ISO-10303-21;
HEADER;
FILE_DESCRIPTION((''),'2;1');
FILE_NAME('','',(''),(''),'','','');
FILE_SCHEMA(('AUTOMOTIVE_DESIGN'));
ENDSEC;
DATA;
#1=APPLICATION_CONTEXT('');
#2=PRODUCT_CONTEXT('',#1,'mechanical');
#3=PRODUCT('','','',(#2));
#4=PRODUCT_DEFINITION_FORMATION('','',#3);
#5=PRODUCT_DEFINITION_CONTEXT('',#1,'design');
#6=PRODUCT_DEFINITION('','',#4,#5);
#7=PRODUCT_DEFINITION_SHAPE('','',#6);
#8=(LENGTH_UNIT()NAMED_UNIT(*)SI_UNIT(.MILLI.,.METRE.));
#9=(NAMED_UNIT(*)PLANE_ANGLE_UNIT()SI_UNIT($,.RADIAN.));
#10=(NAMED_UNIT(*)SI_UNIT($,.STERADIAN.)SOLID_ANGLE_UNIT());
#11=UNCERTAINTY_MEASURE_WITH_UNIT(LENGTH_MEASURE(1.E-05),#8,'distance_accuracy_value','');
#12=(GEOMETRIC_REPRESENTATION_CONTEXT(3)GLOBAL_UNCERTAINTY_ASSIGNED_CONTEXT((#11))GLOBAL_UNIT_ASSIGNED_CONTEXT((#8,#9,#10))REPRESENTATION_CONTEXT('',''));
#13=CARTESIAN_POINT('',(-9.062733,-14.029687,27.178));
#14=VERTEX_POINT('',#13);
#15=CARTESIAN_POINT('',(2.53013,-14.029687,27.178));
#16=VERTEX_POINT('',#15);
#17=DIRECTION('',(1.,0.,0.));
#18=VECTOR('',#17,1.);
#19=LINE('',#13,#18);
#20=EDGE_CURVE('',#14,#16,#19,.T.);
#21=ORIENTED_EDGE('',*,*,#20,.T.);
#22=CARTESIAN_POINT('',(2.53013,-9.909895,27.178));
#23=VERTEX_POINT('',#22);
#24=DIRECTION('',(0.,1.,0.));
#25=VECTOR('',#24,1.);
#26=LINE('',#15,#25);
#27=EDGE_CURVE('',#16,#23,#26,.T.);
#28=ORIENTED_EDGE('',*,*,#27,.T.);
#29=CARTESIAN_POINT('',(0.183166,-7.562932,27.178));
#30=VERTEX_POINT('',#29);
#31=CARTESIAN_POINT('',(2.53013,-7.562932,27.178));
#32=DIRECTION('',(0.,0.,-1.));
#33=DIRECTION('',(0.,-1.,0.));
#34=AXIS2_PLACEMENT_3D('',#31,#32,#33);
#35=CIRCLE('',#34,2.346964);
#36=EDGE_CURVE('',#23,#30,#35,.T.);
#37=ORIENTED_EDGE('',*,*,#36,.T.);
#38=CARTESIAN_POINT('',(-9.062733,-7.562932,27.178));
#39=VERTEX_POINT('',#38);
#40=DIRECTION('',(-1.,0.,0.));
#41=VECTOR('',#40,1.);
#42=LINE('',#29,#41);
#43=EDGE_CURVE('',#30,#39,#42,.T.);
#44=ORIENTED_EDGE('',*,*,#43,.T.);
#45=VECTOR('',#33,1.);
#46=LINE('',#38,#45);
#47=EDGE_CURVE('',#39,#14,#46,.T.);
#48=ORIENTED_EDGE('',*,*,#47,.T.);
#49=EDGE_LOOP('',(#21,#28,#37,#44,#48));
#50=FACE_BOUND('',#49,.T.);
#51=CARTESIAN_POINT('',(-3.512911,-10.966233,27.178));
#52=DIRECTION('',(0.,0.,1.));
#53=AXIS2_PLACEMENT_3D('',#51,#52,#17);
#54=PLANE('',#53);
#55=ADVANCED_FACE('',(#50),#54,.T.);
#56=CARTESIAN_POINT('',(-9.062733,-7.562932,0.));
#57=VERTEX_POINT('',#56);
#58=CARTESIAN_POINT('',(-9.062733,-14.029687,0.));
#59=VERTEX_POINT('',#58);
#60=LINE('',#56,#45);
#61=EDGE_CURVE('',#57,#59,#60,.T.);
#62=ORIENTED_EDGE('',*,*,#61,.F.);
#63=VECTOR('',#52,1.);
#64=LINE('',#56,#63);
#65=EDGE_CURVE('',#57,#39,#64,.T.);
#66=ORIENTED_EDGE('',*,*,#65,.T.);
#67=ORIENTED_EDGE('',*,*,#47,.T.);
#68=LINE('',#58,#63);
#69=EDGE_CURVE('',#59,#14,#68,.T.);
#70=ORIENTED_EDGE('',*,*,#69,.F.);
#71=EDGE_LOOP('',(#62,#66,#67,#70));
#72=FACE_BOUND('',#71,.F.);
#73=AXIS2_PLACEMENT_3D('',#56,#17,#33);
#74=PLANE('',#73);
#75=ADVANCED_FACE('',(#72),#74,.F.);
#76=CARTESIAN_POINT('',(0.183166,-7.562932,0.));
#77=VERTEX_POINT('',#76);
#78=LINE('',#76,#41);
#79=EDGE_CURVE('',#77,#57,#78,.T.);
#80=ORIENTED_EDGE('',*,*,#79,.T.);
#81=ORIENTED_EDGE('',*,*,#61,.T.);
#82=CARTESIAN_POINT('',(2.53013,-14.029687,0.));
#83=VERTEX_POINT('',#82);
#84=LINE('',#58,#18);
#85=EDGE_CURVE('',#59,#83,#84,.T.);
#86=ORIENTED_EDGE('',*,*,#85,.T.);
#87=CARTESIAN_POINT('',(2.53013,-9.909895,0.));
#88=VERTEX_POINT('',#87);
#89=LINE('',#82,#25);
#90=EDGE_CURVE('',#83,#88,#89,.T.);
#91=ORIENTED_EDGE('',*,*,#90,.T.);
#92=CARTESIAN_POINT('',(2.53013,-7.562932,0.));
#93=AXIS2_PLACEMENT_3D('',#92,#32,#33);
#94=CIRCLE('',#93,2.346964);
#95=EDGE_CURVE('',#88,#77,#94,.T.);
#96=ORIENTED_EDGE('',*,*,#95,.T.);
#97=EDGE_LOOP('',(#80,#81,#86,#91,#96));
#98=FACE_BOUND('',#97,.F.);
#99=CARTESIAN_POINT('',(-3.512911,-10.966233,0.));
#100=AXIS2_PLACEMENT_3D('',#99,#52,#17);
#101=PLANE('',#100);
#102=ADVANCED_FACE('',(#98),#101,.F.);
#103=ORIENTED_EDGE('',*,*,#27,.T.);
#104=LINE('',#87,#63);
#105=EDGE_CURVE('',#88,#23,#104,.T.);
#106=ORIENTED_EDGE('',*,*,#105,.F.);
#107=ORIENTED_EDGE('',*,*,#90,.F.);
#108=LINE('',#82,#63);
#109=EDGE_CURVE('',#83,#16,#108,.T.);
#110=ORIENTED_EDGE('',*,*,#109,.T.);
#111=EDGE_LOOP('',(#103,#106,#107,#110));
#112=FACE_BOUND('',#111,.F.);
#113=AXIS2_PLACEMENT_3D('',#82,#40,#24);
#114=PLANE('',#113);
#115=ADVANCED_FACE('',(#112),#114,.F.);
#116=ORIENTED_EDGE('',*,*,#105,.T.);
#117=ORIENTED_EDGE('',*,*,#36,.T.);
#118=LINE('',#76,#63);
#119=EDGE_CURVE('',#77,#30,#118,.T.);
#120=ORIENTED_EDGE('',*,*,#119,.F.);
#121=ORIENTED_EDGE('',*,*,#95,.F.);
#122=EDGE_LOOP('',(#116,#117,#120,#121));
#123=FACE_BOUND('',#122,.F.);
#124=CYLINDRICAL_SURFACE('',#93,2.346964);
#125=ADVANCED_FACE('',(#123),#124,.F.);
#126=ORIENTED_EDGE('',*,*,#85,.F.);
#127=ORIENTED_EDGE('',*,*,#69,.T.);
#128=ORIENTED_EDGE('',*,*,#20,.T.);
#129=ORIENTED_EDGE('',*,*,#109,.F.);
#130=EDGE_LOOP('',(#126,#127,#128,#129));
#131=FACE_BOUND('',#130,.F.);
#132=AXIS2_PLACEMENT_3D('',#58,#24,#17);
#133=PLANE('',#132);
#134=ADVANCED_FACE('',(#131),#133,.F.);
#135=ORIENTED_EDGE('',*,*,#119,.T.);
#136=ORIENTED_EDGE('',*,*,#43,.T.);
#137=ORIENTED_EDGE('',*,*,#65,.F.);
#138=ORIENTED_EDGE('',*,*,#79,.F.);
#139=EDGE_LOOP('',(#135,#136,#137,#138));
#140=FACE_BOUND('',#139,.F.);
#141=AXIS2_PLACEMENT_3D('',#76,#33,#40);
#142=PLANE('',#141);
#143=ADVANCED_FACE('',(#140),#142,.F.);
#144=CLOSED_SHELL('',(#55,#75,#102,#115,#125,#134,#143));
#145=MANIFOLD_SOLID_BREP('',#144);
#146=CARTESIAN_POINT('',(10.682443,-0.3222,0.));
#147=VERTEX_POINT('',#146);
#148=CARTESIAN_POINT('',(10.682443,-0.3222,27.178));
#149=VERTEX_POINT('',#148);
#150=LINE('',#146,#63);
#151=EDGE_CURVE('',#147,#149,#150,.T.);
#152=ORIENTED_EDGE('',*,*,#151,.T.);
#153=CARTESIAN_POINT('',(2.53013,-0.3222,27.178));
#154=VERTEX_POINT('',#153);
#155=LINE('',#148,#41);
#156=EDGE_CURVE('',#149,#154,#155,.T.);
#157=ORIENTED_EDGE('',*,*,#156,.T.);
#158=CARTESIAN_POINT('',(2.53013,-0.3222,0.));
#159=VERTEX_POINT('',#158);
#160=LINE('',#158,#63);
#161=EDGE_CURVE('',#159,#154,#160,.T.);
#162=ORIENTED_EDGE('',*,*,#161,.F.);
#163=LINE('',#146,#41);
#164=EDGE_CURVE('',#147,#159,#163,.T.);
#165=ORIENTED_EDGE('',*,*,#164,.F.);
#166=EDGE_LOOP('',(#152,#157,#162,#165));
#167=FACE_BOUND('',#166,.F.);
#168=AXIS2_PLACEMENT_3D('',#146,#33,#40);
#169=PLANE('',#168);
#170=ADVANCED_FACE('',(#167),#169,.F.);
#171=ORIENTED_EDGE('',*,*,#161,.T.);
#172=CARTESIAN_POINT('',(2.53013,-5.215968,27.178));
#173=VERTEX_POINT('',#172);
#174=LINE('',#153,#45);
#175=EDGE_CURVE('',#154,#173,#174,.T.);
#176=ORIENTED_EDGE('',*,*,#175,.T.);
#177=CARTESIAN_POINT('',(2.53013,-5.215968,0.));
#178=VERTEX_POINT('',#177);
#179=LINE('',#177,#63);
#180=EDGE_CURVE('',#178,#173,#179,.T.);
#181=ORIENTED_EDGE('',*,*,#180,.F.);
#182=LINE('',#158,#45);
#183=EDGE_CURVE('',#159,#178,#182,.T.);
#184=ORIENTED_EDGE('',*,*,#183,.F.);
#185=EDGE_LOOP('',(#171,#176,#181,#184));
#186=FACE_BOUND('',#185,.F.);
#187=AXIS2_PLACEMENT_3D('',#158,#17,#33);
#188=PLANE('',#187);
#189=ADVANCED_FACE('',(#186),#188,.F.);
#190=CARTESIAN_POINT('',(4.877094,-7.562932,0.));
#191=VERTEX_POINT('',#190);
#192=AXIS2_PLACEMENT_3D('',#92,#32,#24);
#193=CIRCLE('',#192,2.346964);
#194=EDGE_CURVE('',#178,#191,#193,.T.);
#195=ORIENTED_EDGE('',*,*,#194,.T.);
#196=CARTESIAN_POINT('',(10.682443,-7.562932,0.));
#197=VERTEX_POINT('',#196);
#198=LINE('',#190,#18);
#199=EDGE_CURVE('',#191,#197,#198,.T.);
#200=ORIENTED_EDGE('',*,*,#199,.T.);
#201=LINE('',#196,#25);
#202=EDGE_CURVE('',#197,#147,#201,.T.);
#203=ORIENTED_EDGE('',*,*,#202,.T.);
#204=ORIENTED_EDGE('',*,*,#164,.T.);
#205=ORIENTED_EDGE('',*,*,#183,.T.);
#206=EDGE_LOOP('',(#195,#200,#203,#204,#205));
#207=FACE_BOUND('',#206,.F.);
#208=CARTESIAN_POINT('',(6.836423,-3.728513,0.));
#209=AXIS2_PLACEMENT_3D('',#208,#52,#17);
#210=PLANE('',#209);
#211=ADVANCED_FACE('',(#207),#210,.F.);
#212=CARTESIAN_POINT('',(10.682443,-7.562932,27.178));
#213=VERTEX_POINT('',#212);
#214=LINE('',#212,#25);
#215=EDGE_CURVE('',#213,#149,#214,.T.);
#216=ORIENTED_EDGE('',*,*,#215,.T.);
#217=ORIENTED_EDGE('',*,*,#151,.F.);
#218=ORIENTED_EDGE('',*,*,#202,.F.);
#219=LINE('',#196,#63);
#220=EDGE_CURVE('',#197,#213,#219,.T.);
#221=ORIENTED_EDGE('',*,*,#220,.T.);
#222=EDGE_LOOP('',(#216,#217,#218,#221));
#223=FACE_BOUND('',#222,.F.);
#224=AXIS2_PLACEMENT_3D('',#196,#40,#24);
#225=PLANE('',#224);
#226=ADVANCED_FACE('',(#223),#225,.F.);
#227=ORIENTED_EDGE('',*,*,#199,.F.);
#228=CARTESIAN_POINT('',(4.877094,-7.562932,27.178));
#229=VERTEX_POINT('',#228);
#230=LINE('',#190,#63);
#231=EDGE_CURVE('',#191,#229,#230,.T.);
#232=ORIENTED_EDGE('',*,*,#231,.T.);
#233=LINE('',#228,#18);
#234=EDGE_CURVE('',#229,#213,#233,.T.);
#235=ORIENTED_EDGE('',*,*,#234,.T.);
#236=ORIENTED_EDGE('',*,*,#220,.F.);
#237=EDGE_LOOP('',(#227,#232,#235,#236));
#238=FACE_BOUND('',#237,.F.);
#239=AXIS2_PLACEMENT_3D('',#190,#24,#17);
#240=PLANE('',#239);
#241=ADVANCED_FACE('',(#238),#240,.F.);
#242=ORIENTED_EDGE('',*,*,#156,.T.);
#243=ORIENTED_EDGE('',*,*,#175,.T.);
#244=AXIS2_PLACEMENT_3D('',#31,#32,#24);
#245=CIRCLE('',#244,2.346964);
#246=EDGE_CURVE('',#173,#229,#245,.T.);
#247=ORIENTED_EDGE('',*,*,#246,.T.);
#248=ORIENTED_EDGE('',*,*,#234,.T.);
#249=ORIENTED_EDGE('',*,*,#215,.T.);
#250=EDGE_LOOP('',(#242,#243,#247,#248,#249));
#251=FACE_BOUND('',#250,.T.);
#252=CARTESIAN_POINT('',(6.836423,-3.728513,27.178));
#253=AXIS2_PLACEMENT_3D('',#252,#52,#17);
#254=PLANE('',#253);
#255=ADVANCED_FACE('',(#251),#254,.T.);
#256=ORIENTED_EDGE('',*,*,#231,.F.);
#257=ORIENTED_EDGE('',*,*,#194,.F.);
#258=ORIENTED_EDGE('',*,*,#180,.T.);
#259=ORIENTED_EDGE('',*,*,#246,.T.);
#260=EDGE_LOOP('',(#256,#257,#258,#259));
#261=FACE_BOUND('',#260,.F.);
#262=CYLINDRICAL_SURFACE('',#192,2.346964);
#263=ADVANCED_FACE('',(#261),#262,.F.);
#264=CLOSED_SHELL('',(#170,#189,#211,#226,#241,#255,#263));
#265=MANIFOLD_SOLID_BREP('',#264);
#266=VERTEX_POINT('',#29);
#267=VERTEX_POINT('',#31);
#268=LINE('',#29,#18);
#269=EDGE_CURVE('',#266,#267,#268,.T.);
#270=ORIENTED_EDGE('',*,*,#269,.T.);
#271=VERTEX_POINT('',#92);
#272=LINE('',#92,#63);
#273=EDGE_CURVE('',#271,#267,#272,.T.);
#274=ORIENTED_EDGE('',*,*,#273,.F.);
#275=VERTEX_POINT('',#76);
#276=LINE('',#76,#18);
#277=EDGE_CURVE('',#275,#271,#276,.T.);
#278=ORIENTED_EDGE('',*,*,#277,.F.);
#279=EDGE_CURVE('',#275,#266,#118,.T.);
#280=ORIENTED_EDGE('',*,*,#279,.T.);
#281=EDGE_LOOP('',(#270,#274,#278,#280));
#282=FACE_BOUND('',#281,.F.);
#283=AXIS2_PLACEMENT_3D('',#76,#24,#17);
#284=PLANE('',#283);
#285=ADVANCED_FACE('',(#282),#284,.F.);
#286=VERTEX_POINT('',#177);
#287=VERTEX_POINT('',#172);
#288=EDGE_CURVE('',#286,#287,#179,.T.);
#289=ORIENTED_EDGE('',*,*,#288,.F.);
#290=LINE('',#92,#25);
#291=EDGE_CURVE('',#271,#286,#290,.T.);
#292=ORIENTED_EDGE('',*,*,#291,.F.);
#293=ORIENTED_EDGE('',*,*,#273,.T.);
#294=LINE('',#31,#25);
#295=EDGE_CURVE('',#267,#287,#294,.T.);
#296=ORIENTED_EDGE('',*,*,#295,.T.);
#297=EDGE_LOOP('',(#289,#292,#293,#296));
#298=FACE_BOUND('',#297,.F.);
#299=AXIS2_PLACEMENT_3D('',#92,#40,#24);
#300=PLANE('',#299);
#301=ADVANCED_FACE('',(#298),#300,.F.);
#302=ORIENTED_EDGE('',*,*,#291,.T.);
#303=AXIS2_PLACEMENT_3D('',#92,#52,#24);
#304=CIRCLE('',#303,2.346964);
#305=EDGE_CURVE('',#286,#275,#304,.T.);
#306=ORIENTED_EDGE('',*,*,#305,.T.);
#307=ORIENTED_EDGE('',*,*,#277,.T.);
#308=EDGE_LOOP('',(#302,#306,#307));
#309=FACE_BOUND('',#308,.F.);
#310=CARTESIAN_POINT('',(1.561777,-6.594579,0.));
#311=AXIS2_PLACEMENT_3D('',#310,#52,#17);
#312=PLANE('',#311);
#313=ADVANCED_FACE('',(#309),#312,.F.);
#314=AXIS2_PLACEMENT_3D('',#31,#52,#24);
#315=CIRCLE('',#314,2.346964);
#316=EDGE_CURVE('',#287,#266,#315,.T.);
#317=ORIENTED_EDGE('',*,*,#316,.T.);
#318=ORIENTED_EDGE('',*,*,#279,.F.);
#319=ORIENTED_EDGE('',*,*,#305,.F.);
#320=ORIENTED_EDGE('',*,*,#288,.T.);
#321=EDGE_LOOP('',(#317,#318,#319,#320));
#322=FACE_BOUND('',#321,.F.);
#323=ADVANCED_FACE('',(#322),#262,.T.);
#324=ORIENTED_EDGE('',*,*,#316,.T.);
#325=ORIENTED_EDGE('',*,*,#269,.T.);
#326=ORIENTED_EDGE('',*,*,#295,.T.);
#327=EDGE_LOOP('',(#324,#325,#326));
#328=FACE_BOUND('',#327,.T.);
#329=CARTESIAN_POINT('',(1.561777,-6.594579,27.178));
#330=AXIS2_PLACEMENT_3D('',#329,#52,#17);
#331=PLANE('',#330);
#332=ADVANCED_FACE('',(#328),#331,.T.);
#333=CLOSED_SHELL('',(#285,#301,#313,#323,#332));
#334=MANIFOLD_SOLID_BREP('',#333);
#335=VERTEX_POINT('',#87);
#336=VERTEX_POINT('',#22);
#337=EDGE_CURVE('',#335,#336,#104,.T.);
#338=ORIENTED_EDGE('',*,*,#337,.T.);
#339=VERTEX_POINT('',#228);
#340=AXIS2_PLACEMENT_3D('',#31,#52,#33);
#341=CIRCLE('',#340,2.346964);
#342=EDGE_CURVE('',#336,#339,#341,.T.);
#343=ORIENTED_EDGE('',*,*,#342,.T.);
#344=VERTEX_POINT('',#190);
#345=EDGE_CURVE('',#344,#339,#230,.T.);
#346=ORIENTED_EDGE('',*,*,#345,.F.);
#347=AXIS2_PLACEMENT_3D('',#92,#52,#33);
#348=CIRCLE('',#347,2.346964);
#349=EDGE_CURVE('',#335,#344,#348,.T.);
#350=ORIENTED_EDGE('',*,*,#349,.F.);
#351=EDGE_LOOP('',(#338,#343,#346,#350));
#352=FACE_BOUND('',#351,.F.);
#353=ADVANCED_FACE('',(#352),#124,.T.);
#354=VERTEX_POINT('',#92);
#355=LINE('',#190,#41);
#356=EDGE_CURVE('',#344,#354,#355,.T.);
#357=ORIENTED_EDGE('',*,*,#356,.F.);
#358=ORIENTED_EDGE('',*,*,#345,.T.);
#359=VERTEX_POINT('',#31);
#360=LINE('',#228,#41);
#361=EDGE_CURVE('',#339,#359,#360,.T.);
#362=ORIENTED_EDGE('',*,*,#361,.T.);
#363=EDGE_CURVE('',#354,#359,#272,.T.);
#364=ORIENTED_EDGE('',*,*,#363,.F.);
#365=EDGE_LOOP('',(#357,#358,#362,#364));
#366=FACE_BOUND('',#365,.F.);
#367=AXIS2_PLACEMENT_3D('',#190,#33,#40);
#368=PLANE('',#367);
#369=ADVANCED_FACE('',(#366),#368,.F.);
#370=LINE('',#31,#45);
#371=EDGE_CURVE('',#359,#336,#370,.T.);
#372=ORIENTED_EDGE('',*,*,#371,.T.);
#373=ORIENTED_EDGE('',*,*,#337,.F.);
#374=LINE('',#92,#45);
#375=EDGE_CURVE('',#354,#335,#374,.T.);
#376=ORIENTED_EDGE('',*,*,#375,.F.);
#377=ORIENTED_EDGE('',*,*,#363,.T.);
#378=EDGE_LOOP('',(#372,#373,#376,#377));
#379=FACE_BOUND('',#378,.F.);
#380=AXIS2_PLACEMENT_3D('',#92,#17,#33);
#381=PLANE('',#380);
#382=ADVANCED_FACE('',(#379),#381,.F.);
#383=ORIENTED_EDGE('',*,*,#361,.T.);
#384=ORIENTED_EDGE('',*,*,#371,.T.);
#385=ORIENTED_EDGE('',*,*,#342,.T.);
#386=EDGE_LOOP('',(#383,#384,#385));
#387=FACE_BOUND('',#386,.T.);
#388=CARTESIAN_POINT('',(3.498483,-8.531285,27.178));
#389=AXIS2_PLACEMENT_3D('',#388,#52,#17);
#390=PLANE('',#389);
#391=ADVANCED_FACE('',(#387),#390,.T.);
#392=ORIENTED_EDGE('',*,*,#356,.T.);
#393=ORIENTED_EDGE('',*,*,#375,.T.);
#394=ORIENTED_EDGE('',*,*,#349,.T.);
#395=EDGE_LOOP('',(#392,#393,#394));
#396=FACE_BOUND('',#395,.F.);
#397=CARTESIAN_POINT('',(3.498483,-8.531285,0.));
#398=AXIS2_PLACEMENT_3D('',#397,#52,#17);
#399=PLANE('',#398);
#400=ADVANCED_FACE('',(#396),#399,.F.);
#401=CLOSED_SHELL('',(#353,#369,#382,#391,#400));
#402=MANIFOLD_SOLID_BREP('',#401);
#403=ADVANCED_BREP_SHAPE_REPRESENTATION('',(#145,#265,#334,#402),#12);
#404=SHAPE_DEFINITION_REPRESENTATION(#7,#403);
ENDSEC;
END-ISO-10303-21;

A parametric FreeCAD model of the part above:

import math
import FreeCAD as App
import Part
import Sketcher

V = App.Vector
Q = App.Units.Quantity

doc = App.newDocument("Part")
body = doc.addObject("PartDesign::Body", "Body")

sketch1 = body.newObject("Sketcher::SketchObject", "Sketch")
sketch1.AttachmentSupport = (doc.getObject("XY_Plane"), [""])
sketch1.MapMode = "FlatFace"
sketch1.addGeometry([
    Part.LineSegment(V(2.5, -0.3, 0), V(2.5, -5.2, 0)),
    Part.ArcOfCircle(Part.Circle(V(2.5, -7.6, 0), V(0, 0, 1), 2.3), math.radians(0), math.radians(90)),
    Part.LineSegment(V(4.9, -7.6, 0), V(10.7, -7.6, 0)),
    Part.LineSegment(V(10.7, -7.6, 0), V(10.7, -0.3, 0)),
    Part.LineSegment(V(10.7, -0.3, 0), V(2.5, -0.3, 0)),
], False)
sketch1.addConstraint([
    Sketcher.Constraint("Coincident", 0, 2, 1, 2),
    Sketcher.Constraint("Coincident", 1, 1, 2, 1),
    Sketcher.Constraint("Coincident", 2, 2, 3, 1),
    Sketcher.Constraint("Coincident", 3, 2, 4, 1),
    Sketcher.Constraint("Coincident", 4, 2, 0, 1),
    Sketcher.Constraint("Vertical", 0),
    Sketcher.Constraint("Horizontal", 2),
    Sketcher.Constraint("Vertical", 3),
    Sketcher.Constraint("Horizontal", 4),
    Sketcher.Constraint("Vertical", 1, 3, 0, 2),
    Sketcher.Constraint("Radius", 1, Q("0.0924002 in")),
    Sketcher.Constraint("DistanceY", 1, 1, 0, 2, Q("0.0924002 in")),
    Sketcher.Constraint("DistanceX", 2, 1, 2, 2, Q("5.805349 mm")),
    Sketcher.Constraint("DistanceY", 3, 1, 3, 2, Q("7.240731 mm")),
    Sketcher.Constraint("DistanceY", 3, 2, -1, 1, Q("0.3222 mm")),
    Sketcher.Constraint("DistanceX", -1, 1, 1, 3, Q("2.53013 mm")),
])
pad1 = body.newObject("PartDesign::Pad", "Pad")
pad1.Profile = sketch1
pad1.Length = Q("1.07 in")
body2 = doc.addObject("PartDesign::Body", "Body001")

sketch2 = body2.newObject("Sketcher::SketchObject", "Sketch001")
sketch2.AttachmentSupport = (doc.getObject("XY_Plane001"), [""])
sketch2.MapMode = "FlatFace"
sketch2.addGeometry([
    Part.LineSegment(V(0.2, -7.6, 0), V(-9.1, -7.6, 0)),
    Part.LineSegment(V(-9.1, -7.6, 0), V(-9.1, -14, 0)),
    Part.LineSegment(V(-9.1, -14, 0), V(2.5, -14, 0)),
    Part.LineSegment(V(2.5, -14, 0), V(2.5, -9.9, 0)),
    Part.ArcOfCircle(Part.Circle(V(2.5, -7.6, 0), V(0, 0, 1), 2.3), math.radians(180), math.radians(270)),
], False)
sketch2.addConstraint([
    Sketcher.Constraint("Coincident", 0, 2, 1, 1),
    Sketcher.Constraint("Coincident", 1, 2, 2, 1),
    Sketcher.Constraint("Coincident", 2, 2, 3, 1),
    Sketcher.Constraint("Coincident", 3, 2, 4, 2),
    Sketcher.Constraint("Coincident", 4, 1, 0, 1),
    Sketcher.Constraint("Horizontal", 0),
    Sketcher.Constraint("Vertical", 1),
    Sketcher.Constraint("Horizontal", 2),
    Sketcher.Constraint("Vertical", 3),
    Sketcher.Constraint("Horizontal", 4, 3, 0, 2),
    Sketcher.Constraint("Vertical", 4, 3, 2, 2),
    Sketcher.Constraint("Radius", 4, Q("0.0924002 in")),
    Sketcher.Constraint("DistanceX", 0, 2, 0, 1, Q("9.245899 mm")),
    Sketcher.Constraint("DistanceY", 3, 1, 3, 2, Q("4.119792 mm")),
    Sketcher.Constraint("DistanceX", -1, 1, 4, 3, Q("2.53013 mm")),
    Sketcher.Constraint("DistanceY", 4, 3, -1, 1, Q("7.562932 mm")),
])
pad2 = body2.newObject("PartDesign::Pad", "Pad001")
pad2.Profile = sketch2
pad2.Length = Q("1.07 in")
body3 = doc.addObject("PartDesign::Body", "Body002")

sketch3 = body3.newObject("Sketcher::SketchObject", "Sketch002")
sketch3.AttachmentSupport = (doc.getObject("XY_Plane002"), [""])
sketch3.MapMode = "FlatFace"
sketch3.addGeometry([
    Part.LineSegment(V(4.9, -7.6, 0), V(2.5, -7.6, 0)),
    Part.LineSegment(V(2.5, -7.6, 0), V(2.5, -9.9, 0)),
    Part.ArcOfCircle(Part.Circle(V(2.5, -7.6, 0), V(0, 0, 1), 2.3), math.radians(-90), math.radians(0)),
], False)
sketch3.addConstraint([
    Sketcher.Constraint("Coincident", 0, 2, 1, 1),
    Sketcher.Constraint("Coincident", 1, 2, 2, 1),
    Sketcher.Constraint("Coincident", 2, 2, 0, 1),
    Sketcher.Constraint("Horizontal", 0),
    Sketcher.Constraint("Vertical", 1),
    Sketcher.Constraint("Coincident", 0, 2, 2, 3),
    Sketcher.Constraint("Radius", 2, Q("0.0924002 in")),
    Sketcher.Constraint("DistanceX", -1, 1, 2, 3, Q("2.53013 mm")),
    Sketcher.Constraint("DistanceY", 2, 3, -1, 1, Q("7.562932 mm")),
])
pad3 = body3.newObject("PartDesign::Pad", "Pad002")
pad3.Profile = sketch3
pad3.Length = Q("1.07 in")
body4 = doc.addObject("PartDesign::Body", "Body003")

sketch4 = body4.newObject("Sketcher::SketchObject", "Sketch003")
sketch4.AttachmentSupport = (doc.getObject("XY_Plane003"), [""])
sketch4.MapMode = "FlatFace"
sketch4.addGeometry([
    Part.ArcOfCircle(Part.Circle(V(2.5, -7.6, 0), V(0, 0, 1), 2.3), math.radians(90), math.radians(180)),
    Part.LineSegment(V(0.2, -7.6, 0), V(2.5, -7.6, 0)),
    Part.LineSegment(V(2.5, -7.6, 0), V(2.5, -5.2, 0)),
], False)
sketch4.addConstraint([
    Sketcher.Constraint("Coincident", 0, 2, 1, 1),
    Sketcher.Constraint("Coincident", 1, 2, 2, 1),
    Sketcher.Constraint("Coincident", 2, 2, 0, 1),
    Sketcher.Constraint("Horizontal", 1),
    Sketcher.Constraint("Vertical", 2),
    Sketcher.Constraint("Coincident", 1, 2, 0, 3),
    Sketcher.Constraint("Radius", 0, Q("0.0924002 in")),
    Sketcher.Constraint("DistanceX", -1, 1, 0, 3, Q("2.53013 mm")),
    Sketcher.Constraint("DistanceY", 0, 3, -1, 1, Q("7.562932 mm")),
])
pad4 = body4.newObject("PartDesign::Pad", "Pad003")
pad4.Profile = sketch4
pad4.Length = Q("1.07 in")

doc.recompute()
